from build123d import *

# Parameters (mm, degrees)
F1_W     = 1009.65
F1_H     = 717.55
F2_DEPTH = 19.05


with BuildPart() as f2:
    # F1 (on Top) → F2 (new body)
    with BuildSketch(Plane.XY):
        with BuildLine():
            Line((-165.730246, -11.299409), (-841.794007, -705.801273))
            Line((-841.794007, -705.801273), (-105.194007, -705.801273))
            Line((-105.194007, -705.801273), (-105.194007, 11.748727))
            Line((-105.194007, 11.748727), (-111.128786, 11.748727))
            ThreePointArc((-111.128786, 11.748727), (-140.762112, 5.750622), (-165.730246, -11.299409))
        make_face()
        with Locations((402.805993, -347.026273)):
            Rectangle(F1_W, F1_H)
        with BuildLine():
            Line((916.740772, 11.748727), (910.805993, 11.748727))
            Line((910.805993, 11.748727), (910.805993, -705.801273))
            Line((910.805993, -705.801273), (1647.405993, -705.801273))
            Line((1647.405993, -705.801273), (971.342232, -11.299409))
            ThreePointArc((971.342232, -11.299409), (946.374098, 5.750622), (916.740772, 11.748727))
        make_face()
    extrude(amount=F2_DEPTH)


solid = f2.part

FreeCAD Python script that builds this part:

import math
import FreeCAD as App
import Part
import Sketcher
from FreeCAD import Vector
Q = App.Units.Quantity

doc = App.newDocument("Part")
body = doc.addObject("PartDesign::Body", "Body")
body.AllowCompound = True

# Sketch on XY plane
sketch1 = doc.addObject("Sketcher::SketchObject", "Sketch")
body.addObject(sketch1)
sketch1.AttachmentSupport = (doc.XY_Plane, [""])
sketch1.MapMode = "FlatFace"
sketch1.addGeometry(Part.LineSegment(Vector(-166, -11, 0), Vector(-842, -706, 0)), False)
sketch1.addGeometry(Part.LineSegment(Vector(-842, -706, 0), Vector(-105, -706, 0)), False)
sketch1.addGeometry(Part.LineSegment(Vector(-105, -706, 0), Vector(-105, 12, 0)), False)
sketch1.addGeometry(Part.LineSegment(Vector(-105, 12, 0), Vector(-111, 12, 0)), False)
sketch1.addGeometry(Part.ArcOfCircle(Part.Circle(Vector(-111, -64, 0), Vector(0, 0, 1), 76), math.radians(90), math.radians(136)), False)
sketch1.addGeometry(Part.LineSegment(Vector(-102, 12, 0), Vector(-102, -706, 0)), False)
sketch1.addGeometry(Part.LineSegment(Vector(-102, -706, 0), Vector(908, -706, 0)), False)
sketch1.addGeometry(Part.LineSegment(Vector(908, -706, 0), Vector(908, 12, 0)), False)
sketch1.addGeometry(Part.LineSegment(Vector(908, 12, 0), Vector(-102, 12, 0)), False)
sketch1.addGeometry(Part.LineSegment(Vector(917, 12, 0), Vector(911, 12, 0)), False)
sketch1.addGeometry(Part.LineSegment(Vector(911, 12, 0), Vector(911, -706, 0)), False)
sketch1.addGeometry(Part.LineSegment(Vector(911, -706, 0), Vector(1647, -706, 0)), False)
sketch1.addGeometry(Part.LineSegment(Vector(1647, -706, 0), Vector(971, -11, 0)), False)
sketch1.addGeometry(Part.ArcOfCircle(Part.Circle(Vector(917, -64, 0), Vector(0, 0, 1), 76), math.radians(44), math.radians(90)), False)
sketch1.addConstraint(Sketcher.Constraint("Coincident", 0, 2, 1, 1))
sketch1.addConstraint(Sketcher.Constraint("Coincident", 1, 2, 2, 1))
sketch1.addConstraint(Sketcher.Constraint("Coincident", 2, 2, 3, 1))
sketch1.addConstraint(Sketcher.Constraint("Tangent", 3, 2, 4, 1))
sketch1.addConstraint(Sketcher.Constraint("Tangent", 4, 2, 0, 1))
sketch1.addConstraint(Sketcher.Constraint("Coincident", 5, 2, 6, 1))
sketch1.addConstraint(Sketcher.Constraint("Coincident", 6, 2, 7, 1))
sketch1.addConstraint(Sketcher.Constraint("Coincident", 7, 2, 8, 1))
sketch1.addConstraint(Sketcher.Constraint("Coincident", 8, 2, 5, 1))
sketch1.addConstraint(Sketcher.Constraint("Coincident", 9, 2, 10, 1))
sketch1.addConstraint(Sketcher.Constraint("Coincident", 10, 2, 11, 1))
sketch1.addConstraint(Sketcher.Constraint("Coincident", 11, 2, 12, 1))
sketch1.addConstraint(Sketcher.Constraint("Tangent", 12, 2, 13, 1))
sketch1.addConstraint(Sketcher.Constraint("Tangent", 13, 2, 9, 1))
sketch1.addConstraint(Sketcher.Constraint("Horizontal", 1))
sketch1.addConstraint(Sketcher.Constraint("Vertical", 2))
sketch1.addConstraint(Sketcher.Constraint("Horizontal", 3))
sketch1.addConstraint(Sketcher.Constraint("Vertical", 5))
sketch1.addConstraint(Sketcher.Constraint("Horizontal", 6))
sketch1.addConstraint(Sketcher.Constraint("Vertical", 7))
sketch1.addConstraint(Sketcher.Constraint("Horizontal", 8))
sketch1.addConstraint(Sketcher.Constraint("Horizontal", 9))
sketch1.addConstraint(Sketcher.Constraint("Vertical", 10))
sketch1.addConstraint(Sketcher.Constraint("Horizontal", 11))
sketch1.addConstraint(Sketcher.Constraint("Equal", 4, 13))
sketch1.addConstraint(Sketcher.Constraint("Horizontal", 4, 3, 13, 3))
sketch1.addConstraint(Sketcher.Constraint("Horizontal", 1, 2, 5, 2))
sketch1.addConstraint(Sketcher.Constraint("Horizontal", 3, 2, 7, 2))
sketch1.addConstraint(Sketcher.Constraint("Horizontal", 6, 2, 10, 2))
sketch1.addConstraint(Sketcher.Constraint("Equal", 3, 9))
sketch1.addConstraint(Sketcher.Constraint("Equal", 1, 11))
sketch1.addConstraint(Sketcher.Constraint("Radius", 4, Q("2.9999999 in")))
sketch1.addConstraint(Sketcher.Constraint("DistanceX", 1, 1, 1, 2, Q("29 in")))
sketch1.addConstraint(Sketcher.Constraint("DistanceX", 2, 2, 9, 2, Q("40 in")))
sketch1.addConstraint(Sketcher.Constraint("DistanceX", 6, 1, 6, 2, Q("39.75 in")))
sketch1.addConstraint(Sketcher.Constraint("DistanceY", 2, 1, 2, 2, Q("28.25 in")))
sketch1.addConstraint(Sketcher.Constraint("DistanceX", 1, 2, 5, 2, Q("0.125 in")))
sketch1.addConstraint(Sketcher.Constraint("DistanceX", 3, 2, 3, 1, 5.934779))
sketch1.addConstraint(Sketcher.Constraint("DistanceY", 4, 3, -1, 1, 64.451271))
sketch1.addConstraint(Sketcher.Constraint("DistanceX", -1, 1, 12, 2, 971.342232))
pad1 = doc.addObject("PartDesign::Pad", "Pad")
body.addObject(pad1)
pad1.Profile = sketch1
pad1.Length = Q("0.75 in")

doc.recompute()
